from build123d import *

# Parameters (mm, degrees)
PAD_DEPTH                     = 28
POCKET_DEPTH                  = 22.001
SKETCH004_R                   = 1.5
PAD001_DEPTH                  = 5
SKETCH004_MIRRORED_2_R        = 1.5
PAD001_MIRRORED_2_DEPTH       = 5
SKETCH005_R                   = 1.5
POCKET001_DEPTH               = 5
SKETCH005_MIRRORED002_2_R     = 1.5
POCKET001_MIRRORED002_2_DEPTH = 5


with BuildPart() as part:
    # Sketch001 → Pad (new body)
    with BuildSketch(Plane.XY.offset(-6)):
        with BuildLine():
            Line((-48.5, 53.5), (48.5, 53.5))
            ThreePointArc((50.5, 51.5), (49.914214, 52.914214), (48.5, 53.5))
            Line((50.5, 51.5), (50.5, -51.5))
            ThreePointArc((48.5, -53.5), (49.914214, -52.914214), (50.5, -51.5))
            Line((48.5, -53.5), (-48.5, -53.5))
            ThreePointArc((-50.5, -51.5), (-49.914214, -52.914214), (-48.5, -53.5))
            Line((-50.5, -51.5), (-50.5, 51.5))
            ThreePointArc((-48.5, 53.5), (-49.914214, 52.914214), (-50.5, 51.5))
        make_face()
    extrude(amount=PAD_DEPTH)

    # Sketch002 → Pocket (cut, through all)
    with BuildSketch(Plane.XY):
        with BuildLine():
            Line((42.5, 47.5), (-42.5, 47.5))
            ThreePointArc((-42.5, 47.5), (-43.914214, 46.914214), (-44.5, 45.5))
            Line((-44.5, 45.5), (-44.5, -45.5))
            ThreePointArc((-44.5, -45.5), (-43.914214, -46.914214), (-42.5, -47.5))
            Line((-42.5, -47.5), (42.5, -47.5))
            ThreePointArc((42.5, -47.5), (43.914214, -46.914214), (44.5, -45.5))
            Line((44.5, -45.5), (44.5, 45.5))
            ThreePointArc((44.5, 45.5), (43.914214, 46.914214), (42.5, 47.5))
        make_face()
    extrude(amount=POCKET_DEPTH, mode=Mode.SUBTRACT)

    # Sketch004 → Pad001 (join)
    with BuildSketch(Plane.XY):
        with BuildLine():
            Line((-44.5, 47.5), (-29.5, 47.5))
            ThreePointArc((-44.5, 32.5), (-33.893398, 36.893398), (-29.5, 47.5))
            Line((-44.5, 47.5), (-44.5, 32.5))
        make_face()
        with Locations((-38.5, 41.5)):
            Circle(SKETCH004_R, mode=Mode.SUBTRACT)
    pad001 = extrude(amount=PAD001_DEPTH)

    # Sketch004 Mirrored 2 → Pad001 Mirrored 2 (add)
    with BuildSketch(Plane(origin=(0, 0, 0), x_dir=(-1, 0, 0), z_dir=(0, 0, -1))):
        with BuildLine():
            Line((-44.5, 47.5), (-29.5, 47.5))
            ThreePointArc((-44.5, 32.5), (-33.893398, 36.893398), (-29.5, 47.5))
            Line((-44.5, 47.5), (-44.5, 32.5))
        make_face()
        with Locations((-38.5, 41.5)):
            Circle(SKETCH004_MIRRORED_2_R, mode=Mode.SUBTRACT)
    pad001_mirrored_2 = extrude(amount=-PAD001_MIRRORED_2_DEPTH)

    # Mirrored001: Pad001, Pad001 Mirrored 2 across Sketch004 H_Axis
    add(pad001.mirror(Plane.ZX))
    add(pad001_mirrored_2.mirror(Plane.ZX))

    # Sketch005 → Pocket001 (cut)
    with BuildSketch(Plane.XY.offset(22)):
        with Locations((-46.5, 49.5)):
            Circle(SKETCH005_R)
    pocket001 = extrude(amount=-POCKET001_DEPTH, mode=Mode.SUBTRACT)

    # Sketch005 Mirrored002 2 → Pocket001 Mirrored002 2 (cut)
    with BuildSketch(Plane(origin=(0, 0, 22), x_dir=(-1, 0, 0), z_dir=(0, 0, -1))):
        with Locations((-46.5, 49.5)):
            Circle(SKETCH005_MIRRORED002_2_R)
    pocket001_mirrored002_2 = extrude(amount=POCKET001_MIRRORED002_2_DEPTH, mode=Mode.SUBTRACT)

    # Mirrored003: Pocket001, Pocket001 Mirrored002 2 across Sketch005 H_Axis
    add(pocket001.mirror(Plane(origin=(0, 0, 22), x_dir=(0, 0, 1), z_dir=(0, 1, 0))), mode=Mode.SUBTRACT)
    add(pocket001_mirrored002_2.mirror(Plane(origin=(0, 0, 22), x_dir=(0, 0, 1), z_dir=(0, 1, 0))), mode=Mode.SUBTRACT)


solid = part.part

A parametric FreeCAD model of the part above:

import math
import FreeCAD as App
import Part
import Sketcher
from FreeCAD import Vector
Q = App.Units.Quantity

doc = App.newDocument("Part")
body = doc.addObject("PartDesign::Body", "Body")

sketch1 = doc.addObject("Sketcher::SketchObject", "Sketch")
body.addObject(sketch1)
sketch1.AttachmentSupport = (doc.XY_Plane, [""])
sketch1.MapMode = "FlatFace"
sketch1.AttachmentOffset = App.Placement(Vector(0, 0, -6), App.Rotation())
sketch1.addGeometry([
    Part.LineSegment(Vector(48.5, 53.5, 0), Vector(-48.5, 53.5, 0)),
    Part.ArcOfCircle(Part.Circle(Vector(-48.500001, 51.500001, 0), Vector(0, 0, 1), 1.999999), math.radians(89.999957), math.radians(180.000043)),
    Part.LineSegment(Vector(-50.5, 51.5, 0), Vector(-50.5, -51.5, 0)),
    Part.ArcOfCircle(Part.Circle(Vector(-48.500001, -51.500001, 0), Vector(0, 0, 1), 1.999999), math.radians(179.999957), math.radians(270.000043)),
    Part.LineSegment(Vector(-48.5, -53.5, 0), Vector(48.5, -53.5, 0)),
    Part.ArcOfCircle(Part.Circle(Vector(48.500001, -51.500001, 0), Vector(0, 0, 1), 1.999999), math.radians(-90.000043), math.radians(0.000043)),
    Part.LineSegment(Vector(50.5, -51.5, 0), Vector(50.5, 51.5, 0)),
    Part.ArcOfCircle(Part.Circle(Vector(48.500001, 51.500001, 0), Vector(0, 0, 1), 1.999999), math.radians(-0.000043), math.radians(90.000043)),
], False)
sketch1.addConstraint([
    Sketcher.Constraint("Tangent", 0, 2, 1, 1),
    Sketcher.Constraint("Tangent", 1, 2, 2, 1),
    Sketcher.Constraint("Tangent", 2, 2, 3, 1),
    Sketcher.Constraint("Tangent", 3, 2, 4, 1),
    Sketcher.Constraint("Tangent", 4, 2, 5, 1),
    Sketcher.Constraint("Tangent", 5, 2, 6, 1),
    Sketcher.Constraint("Tangent", 6, 2, 7, 1),
    Sketcher.Constraint("Tangent", 7, 2, 0, 1),
    Sketcher.Constraint("Horizontal", 0),
    Sketcher.Constraint("Vertical", 2),
    Sketcher.Constraint("Horizontal", 4),
    Sketcher.Constraint("Vertical", 6),
    Sketcher.Constraint("Equal", 1, 3),
    Sketcher.Constraint("Equal", 3, 5),
    Sketcher.Constraint("Equal", 5, 7),
    Sketcher.Constraint("Symmetric", 1, 3, 5, 3, -1, 1),
    Sketcher.Constraint("Radius", 1, Q("1.999999 mm")),
    Sketcher.Constraint("DistanceX", 0, 2, 0, 1, Q("97 mm")),
    Sketcher.Constraint("DistanceY", 2, 2, 2, 1, Q("103 mm")),
])
pad1 = doc.addObject("PartDesign::Pad", "Pad")
body.addObject(pad1)
pad1.Profile = sketch1
pad1.Length = 28

sketch2 = doc.addObject("Sketcher::SketchObject", "Sketch001")
body.addObject(sketch2)
sketch2.AttachmentSupport = (doc.XY_Plane, [""])
sketch2.MapMode = "FlatFace"
sketch2.addGeometry([
    Part.LineSegment(Vector(42.5, 47.5, 0), Vector(-42.5, 47.5, 0)),
    Part.ArcOfCircle(Part.Circle(Vector(-42.500001, 45.500001, 0), Vector(0, 0, 1), 1.999999), math.radians(89.999957), math.radians(180.000043)),
    Part.LineSegment(Vector(-44.5, 45.5, 0), Vector(-44.5, -45.5, 0)),
    Part.ArcOfCircle(Part.Circle(Vector(-42.500001, -45.500001, 0), Vector(0, 0, 1), 1.999999), math.radians(179.999957), math.radians(270.000043)),
    Part.LineSegment(Vector(-42.5, -47.5, 0), Vector(42.5, -47.5, 0)),
    Part.ArcOfCircle(Part.Circle(Vector(42.500001, -45.500001, 0), Vector(0, 0, 1), 1.999999), math.radians(-90.000043), math.radians(0.000043)),
    Part.LineSegment(Vector(44.5, -45.5, 0), Vector(44.5, 45.5, 0)),
    Part.ArcOfCircle(Part.Circle(Vector(42.500001, 45.500001, 0), Vector(0, 0, 1), 1.999999), math.radians(-0.000043), math.radians(90.000043)),
], False)
sketch2.addConstraint([
    Sketcher.Constraint("Tangent", 0, 2, 1, 1),
    Sketcher.Constraint("Tangent", 1, 2, 2, 1),
    Sketcher.Constraint("Tangent", 2, 2, 3, 1),
    Sketcher.Constraint("Tangent", 3, 2, 4, 1),
    Sketcher.Constraint("Tangent", 4, 2, 5, 1),
    Sketcher.Constraint("Tangent", 5, 2, 6, 1),
    Sketcher.Constraint("Tangent", 6, 2, 7, 1),
    Sketcher.Constraint("Tangent", 7, 2, 0, 1),
    Sketcher.Constraint("Horizontal", 0),
    Sketcher.Constraint("Vertical", 2),
    Sketcher.Constraint("Horizontal", 4),
    Sketcher.Constraint("Vertical", 6),
    Sketcher.Constraint("Equal", 1, 3),
    Sketcher.Constraint("Equal", 3, 5),
    Sketcher.Constraint("Equal", 5, 7),
    Sketcher.Constraint("Symmetric", 1, 3, 5, 3, -1, 1),
    Sketcher.Constraint("Radius", 1, Q("1.999999 mm")),
    Sketcher.Constraint("DistanceX", 0, 2, 0, 1, Q("85 mm")),
    Sketcher.Constraint("DistanceY", 2, 2, 2, 1, Q("91 mm")),
])
pocket1 = doc.addObject("PartDesign::Pocket", "Pocket")
body.addObject(pocket1)
pocket1.Profile = sketch2
pocket1.Type = "ThroughAll"
pocket1.Reversed = True

sketch3 = doc.addObject("Sketcher::SketchObject", "Sketch002")
body.addObject(sketch3)
sketch3.AttachmentSupport = (doc.XY_Plane, [""])
sketch3.MapMode = "FlatFace"
sketch3.addGeometry([
    Part.LineSegment(Vector(-29.5, 47.5, 0), Vector(-44.5, 47.5, 0)),
    Part.LineSegment(Vector(-44.5, 47.5, 0), Vector(-44.5, 32.5, 0)),
    Part.ArcOfCircle(Part.Circle(Vector(-44.499999, 47.499999, 0), Vector(0, 0, 1), 14.999999), math.radians(-90.000004), math.radians(0.000004)),
    Part.Circle(Vector(-38.5, 41.5, 0), Vector(0, 0, 1), 1.5),
], False)
sketch3.addConstraint([
    Sketcher.Constraint("Coincident", 0, 2, 1, 1),
    Sketcher.Constraint("Coincident", 1, 2, 2, 1),
    Sketcher.Constraint("Coincident", 2, 2, 0, 1),
    Sketcher.Constraint("Horizontal", 0),
    Sketcher.Constraint("Vertical", 1),
    Sketcher.Constraint("Coincident", 0, 2, 2, 3),
    Sketcher.Constraint("Diameter", 3, Q("3 mm")),
    Sketcher.Constraint("Radius", 2, Q("14.999999 mm")),
    Sketcher.Constraint("DistanceX", 2, 3, 3, 3, Q("5.999999 mm")),
    Sketcher.Constraint("DistanceY", 3, 3, 2, 3, Q("5.999999 mm")),
    Sketcher.Constraint("DistanceX", 2, 3, -1, 1, Q("44.499999 mm")),
    Sketcher.Constraint("DistanceY", -1, 1, 2, 3, Q("47.499999 mm")),
])
pad2 = doc.addObject("PartDesign::Pad", "Pad001")
body.addObject(pad2)
pad2.Profile = sketch3
pad2.Length = 5

sketch4 = doc.addObject("Sketcher::SketchObject", "Sketch003")
body.addObject(sketch4)
sketch4.AttachmentSupport = (doc.XY_Plane, [""])
sketch4.MapMode = "FlatFace"
sketch4.addGeometry([
    Part.LineSegment(Vector(29.5, 47.5, 0), Vector(44.5, 47.5, 0)),
    Part.LineSegment(Vector(44.5, 47.5, 0), Vector(44.5, 32.5, 0)),
    Part.ArcOfCircle(Part.Circle(Vector(44.499999, 47.499999, 0), Vector(0, 0, 1), 14.999999), math.radians(179.999996), math.radians(270.000004)),
    Part.Circle(Vector(38.5, 41.5, 0), Vector(0, 0, 1), 1.5),
], False)
sketch4.addConstraint([
    Sketcher.Constraint("Coincident", 0, 2, 1, 1),
    Sketcher.Constraint("Coincident", 1, 2, 2, 2),
    Sketcher.Constraint("Coincident", 2, 1, 0, 1),
    Sketcher.Constraint("Horizontal", 0),
    Sketcher.Constraint("Vertical", 1),
    Sketcher.Constraint("Coincident", 0, 2, 2, 3),
    Sketcher.Constraint("Diameter", 3, Q("3 mm")),
    Sketcher.Constraint("Radius", 2, Q("14.999999 mm")),
    Sketcher.Constraint("DistanceX", 3, 3, 2, 3, Q("5.999999 mm")),
    Sketcher.Constraint("DistanceY", 3, 3, 2, 3, Q("5.999999 mm")),
    Sketcher.Constraint("DistanceX", -1, 1, 2, 3, Q("44.499999 mm")),
    Sketcher.Constraint("DistanceY", -1, 1, 2, 3, Q("47.499999 mm")),
])
pad3 = doc.addObject("PartDesign::Pad", "Pad002")
body.addObject(pad3)
pad3.Profile = sketch4
pad3.Length = 5
doc.recompute()

mirrored = doc.addObject("PartDesign::Mirrored", "Mirrored")
body.addObject(mirrored)
mirrored.Originals = [pad2, pad3]
mirrored.MirrorPlane = (doc.XZ_Plane, [""])
body.Tip = mirrored

sketch5 = doc.addObject("Sketcher::SketchObject", "Sketch004")
body.addObject(sketch5)
sketch5.AttachmentSupport = (doc.XY_Plane, [""])
sketch5.MapMode = "FlatFace"
sketch5.AttachmentOffset = App.Placement(Vector(0, 0, 22), App.Rotation())
sketch5.addGeometry(Part.Circle(Vector(-46.5, 49.5, 0), Vector(0, 0, 1), 1.5), False)
sketch5.addConstraint([
    Sketcher.Constraint("Diameter", 0, Q("3 mm")),
    Sketcher.Constraint("DistanceX", 0, 3, -1, 1, Q("46.5 mm")),
    Sketcher.Constraint("DistanceY", -1, 1, 0, 3, Q("49.5 mm")),
])
pocket2 = doc.addObject("PartDesign::Pocket", "Pocket001")
body.addObject(pocket2)
pocket2.Profile = sketch5
pocket2.Length = 5

sketch6 = doc.addObject("Sketcher::SketchObject", "Sketch005")
body.addObject(sketch6)
sketch6.AttachmentSupport = (doc.XY_Plane, [""])
sketch6.MapMode = "FlatFace"
sketch6.AttachmentOffset = App.Placement(Vector(0, 0, 22), App.Rotation())
sketch6.addGeometry(Part.Circle(Vector(46.5, 49.5, 0), Vector(0, 0, 1), 1.5), False)
sketch6.addConstraint([
    Sketcher.Constraint("Diameter", 0, Q("3 mm")),
    Sketcher.Constraint("DistanceX", -1, 1, 0, 3, Q("46.5 mm")),
    Sketcher.Constraint("DistanceY", -1, 1, 0, 3, Q("49.5 mm")),
])
pocket3 = doc.addObject("PartDesign::Pocket", "Pocket002")
body.addObject(pocket3)
pocket3.Profile = sketch6
pocket3.Length = 5
doc.recompute()

mirrored2 = doc.addObject("PartDesign::Mirrored", "Mirrored001")
body.addObject(mirrored2)
mirrored2.Originals = [pocket2, pocket3]
mirrored2.MirrorPlane = (doc.XZ_Plane, [""])
body.Tip = mirrored2

doc.recompute()
